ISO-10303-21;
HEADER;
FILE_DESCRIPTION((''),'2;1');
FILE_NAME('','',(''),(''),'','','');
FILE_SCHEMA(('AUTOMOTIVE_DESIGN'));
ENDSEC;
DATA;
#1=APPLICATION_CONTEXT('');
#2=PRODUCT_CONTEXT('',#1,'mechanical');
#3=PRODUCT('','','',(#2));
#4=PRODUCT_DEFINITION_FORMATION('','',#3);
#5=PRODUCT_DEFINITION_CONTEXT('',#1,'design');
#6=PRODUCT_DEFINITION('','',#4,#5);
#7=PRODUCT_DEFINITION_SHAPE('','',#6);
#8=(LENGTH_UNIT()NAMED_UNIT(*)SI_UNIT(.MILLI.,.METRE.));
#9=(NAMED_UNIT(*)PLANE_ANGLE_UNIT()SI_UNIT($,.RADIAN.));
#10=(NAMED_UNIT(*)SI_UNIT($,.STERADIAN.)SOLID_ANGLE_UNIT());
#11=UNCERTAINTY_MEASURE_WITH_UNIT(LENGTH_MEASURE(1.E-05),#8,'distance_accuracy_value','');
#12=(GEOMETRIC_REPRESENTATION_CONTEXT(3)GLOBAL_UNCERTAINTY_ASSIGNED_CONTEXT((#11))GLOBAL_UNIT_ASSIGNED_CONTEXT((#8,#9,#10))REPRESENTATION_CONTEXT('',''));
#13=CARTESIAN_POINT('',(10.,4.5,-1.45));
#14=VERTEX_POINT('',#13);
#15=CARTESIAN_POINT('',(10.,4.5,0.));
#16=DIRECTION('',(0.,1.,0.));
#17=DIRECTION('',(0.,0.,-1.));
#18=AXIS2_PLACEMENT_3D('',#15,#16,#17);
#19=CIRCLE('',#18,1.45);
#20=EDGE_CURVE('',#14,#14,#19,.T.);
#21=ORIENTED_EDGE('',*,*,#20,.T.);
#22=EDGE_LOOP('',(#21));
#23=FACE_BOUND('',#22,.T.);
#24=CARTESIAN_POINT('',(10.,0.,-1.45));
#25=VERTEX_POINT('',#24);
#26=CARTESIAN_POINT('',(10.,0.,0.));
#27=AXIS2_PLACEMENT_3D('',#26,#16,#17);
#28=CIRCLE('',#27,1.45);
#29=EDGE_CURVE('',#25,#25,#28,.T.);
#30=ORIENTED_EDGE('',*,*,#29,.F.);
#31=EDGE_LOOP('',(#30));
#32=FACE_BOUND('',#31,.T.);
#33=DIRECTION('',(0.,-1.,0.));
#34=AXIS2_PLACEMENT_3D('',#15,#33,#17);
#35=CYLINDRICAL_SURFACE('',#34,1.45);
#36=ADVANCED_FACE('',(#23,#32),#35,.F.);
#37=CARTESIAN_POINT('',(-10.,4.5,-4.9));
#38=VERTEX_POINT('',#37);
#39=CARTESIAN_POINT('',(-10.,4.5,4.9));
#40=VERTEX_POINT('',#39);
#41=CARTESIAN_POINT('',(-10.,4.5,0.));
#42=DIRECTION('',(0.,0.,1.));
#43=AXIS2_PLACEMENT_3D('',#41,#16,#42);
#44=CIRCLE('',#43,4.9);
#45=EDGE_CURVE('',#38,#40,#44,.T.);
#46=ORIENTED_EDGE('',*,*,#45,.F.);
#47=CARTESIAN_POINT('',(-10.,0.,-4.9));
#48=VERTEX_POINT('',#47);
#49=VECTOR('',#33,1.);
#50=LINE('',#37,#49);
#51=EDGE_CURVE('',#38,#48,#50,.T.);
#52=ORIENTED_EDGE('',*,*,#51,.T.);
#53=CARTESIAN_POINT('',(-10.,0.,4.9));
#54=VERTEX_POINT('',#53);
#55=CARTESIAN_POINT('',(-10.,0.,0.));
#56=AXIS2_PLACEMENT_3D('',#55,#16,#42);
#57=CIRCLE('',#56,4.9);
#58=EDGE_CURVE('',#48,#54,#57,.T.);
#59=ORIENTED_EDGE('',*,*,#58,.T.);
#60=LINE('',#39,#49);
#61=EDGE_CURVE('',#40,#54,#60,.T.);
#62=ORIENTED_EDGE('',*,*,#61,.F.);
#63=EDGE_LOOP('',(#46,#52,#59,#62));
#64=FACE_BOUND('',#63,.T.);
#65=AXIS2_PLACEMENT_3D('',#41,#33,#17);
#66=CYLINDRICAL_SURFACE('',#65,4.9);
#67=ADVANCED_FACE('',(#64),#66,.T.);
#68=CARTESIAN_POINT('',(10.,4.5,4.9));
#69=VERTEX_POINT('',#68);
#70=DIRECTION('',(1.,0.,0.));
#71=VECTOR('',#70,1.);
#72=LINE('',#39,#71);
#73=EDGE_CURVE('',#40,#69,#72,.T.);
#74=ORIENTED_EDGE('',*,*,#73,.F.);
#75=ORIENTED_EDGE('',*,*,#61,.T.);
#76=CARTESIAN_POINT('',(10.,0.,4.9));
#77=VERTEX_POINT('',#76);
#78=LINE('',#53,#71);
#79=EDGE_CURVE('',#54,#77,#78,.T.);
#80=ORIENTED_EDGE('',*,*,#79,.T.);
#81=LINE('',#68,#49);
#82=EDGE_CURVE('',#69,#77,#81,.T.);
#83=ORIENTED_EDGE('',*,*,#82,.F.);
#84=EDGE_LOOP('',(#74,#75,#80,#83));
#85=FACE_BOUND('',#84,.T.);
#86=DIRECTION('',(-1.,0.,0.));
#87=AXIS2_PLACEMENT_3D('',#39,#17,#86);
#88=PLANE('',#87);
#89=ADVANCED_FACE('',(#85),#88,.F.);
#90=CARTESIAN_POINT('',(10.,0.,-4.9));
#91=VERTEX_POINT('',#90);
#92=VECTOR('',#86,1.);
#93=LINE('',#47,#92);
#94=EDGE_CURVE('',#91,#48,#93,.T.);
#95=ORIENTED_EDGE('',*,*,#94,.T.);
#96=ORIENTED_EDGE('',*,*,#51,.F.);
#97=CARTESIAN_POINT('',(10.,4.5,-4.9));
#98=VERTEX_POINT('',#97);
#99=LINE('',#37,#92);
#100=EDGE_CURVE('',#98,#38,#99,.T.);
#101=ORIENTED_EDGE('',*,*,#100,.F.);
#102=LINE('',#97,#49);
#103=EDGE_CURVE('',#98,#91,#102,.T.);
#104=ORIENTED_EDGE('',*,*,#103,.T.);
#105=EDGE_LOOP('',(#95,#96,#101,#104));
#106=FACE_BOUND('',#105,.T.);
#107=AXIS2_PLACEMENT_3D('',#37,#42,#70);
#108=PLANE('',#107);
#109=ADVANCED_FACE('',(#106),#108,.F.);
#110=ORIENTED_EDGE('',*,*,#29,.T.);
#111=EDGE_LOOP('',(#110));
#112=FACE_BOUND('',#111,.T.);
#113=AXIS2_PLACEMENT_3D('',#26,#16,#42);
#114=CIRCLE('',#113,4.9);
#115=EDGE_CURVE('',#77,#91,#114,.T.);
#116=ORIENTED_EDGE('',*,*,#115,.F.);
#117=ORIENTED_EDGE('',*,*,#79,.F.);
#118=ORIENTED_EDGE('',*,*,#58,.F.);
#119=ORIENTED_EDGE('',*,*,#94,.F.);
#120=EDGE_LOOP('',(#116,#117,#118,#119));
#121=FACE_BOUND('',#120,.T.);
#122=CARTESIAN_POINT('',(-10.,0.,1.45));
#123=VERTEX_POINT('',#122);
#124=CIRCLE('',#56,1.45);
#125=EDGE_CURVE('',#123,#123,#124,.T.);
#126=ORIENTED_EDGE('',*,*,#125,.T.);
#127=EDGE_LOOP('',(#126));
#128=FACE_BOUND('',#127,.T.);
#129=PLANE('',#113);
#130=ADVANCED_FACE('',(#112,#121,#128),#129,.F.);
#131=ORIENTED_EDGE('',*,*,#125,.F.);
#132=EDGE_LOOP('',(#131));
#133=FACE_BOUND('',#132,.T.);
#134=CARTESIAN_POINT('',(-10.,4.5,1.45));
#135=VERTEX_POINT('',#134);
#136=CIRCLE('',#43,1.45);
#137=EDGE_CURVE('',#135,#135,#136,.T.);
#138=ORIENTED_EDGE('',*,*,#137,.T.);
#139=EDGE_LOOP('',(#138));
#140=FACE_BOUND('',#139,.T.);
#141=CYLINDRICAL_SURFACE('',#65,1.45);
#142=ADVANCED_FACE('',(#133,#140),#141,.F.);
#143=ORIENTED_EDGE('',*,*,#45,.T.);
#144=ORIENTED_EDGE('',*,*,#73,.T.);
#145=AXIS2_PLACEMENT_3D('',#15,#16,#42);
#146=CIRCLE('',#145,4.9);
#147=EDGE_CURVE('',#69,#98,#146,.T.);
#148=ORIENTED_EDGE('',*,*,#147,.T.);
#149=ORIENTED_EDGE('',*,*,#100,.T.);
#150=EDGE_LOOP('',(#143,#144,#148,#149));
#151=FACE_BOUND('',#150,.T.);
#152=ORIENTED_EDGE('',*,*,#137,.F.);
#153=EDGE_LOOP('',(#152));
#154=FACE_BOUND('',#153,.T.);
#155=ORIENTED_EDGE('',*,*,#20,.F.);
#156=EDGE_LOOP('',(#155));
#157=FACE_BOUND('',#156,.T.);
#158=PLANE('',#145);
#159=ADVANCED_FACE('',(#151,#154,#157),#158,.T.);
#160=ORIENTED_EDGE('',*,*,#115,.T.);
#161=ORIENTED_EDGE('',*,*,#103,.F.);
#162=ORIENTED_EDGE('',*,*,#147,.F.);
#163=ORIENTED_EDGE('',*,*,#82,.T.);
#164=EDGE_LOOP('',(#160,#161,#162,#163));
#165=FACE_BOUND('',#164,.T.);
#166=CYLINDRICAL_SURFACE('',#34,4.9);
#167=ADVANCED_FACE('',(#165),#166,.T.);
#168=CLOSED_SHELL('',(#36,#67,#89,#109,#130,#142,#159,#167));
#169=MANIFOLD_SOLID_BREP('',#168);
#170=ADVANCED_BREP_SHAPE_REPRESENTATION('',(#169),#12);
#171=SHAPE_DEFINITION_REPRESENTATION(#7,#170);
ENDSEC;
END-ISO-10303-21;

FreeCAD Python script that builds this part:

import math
import FreeCAD as App
import Part
import Sketcher

doc = App.newDocument("Part")
body = doc.addObject("PartDesign::Body", "Body")

sketch1 = doc.addObject("Sketcher::SketchObject", "Sketch")
body.addObject(sketch1)
sketch1.AttachmentSupport = (doc.XZ_Plane, [""])
sketch1.MapMode = "FlatFace"
sketch1.addGeometry(Part.LineSegment(App.Vector(10, -4.9, 0), App.Vector(-10, -4.9, 0)), False)
sketch1.addGeometry(Part.ArcOfCircle(Part.Circle(App.Vector(-10, 0, 0), App.Vector(0, 0, 1), 4.9), math.radians(90), math.radians(270)), False)
sketch1.addGeometry(Part.LineSegment(App.Vector(-10, 4.9, 0), App.Vector(10, 4.9, 0)), False)
sketch1.addGeometry(Part.ArcOfCircle(Part.Circle(App.Vector(10, 0, 0), App.Vector(0, 0, 1), 4.9), math.radians(-90), math.radians(90)), False)
sketch1.addGeometry(Part.Circle(App.Vector(10, 0, 0), App.Vector(0, 0, 1), 1.4), False)
sketch1.addGeometry(Part.Circle(App.Vector(-10, 0, 0), App.Vector(0, 0, 1), 1.4), False)
sketch1.addConstraint(Sketcher.Constraint("Tangent", 0, 2, 1, 2))
sketch1.addConstraint(Sketcher.Constraint("Tangent", 1, 1, 2, 1))
sketch1.addConstraint(Sketcher.Constraint("Tangent", 2, 2, 3, 2))
sketch1.addConstraint(Sketcher.Constraint("Tangent", 3, 1, 0, 1))
sketch1.addConstraint(Sketcher.Constraint("Horizontal", 0))
sketch1.addConstraint(Sketcher.Constraint("Horizontal", 2))
sketch1.addConstraint(Sketcher.Constraint("Coincident", 4, 3, 3, 3))
sketch1.addConstraint(Sketcher.Constraint("Coincident", 5, 3, 1, 3))
sketch1.addConstraint(Sketcher.Constraint("Equal", 4, 5))
sketch1.addConstraint(Sketcher.Constraint("Symmetric", 1, 3, 3, 3, -1, 1))
sketch1.addConstraint(Sketcher.Constraint("Diameter", 4, 2.9))
sketch1.addConstraint(Sketcher.Constraint("Radius", 1, 4.9))
sketch1.addConstraint(Sketcher.Constraint("DistanceX", 0, 2, 0, 1, 20.0))
pad1 = doc.addObject("PartDesign::Pad", "Pad")
body.addObject(pad1)
pad1.Profile = sketch1
pad1.Length = 4.5
pad1.Reversed = True

doc.recompute()
